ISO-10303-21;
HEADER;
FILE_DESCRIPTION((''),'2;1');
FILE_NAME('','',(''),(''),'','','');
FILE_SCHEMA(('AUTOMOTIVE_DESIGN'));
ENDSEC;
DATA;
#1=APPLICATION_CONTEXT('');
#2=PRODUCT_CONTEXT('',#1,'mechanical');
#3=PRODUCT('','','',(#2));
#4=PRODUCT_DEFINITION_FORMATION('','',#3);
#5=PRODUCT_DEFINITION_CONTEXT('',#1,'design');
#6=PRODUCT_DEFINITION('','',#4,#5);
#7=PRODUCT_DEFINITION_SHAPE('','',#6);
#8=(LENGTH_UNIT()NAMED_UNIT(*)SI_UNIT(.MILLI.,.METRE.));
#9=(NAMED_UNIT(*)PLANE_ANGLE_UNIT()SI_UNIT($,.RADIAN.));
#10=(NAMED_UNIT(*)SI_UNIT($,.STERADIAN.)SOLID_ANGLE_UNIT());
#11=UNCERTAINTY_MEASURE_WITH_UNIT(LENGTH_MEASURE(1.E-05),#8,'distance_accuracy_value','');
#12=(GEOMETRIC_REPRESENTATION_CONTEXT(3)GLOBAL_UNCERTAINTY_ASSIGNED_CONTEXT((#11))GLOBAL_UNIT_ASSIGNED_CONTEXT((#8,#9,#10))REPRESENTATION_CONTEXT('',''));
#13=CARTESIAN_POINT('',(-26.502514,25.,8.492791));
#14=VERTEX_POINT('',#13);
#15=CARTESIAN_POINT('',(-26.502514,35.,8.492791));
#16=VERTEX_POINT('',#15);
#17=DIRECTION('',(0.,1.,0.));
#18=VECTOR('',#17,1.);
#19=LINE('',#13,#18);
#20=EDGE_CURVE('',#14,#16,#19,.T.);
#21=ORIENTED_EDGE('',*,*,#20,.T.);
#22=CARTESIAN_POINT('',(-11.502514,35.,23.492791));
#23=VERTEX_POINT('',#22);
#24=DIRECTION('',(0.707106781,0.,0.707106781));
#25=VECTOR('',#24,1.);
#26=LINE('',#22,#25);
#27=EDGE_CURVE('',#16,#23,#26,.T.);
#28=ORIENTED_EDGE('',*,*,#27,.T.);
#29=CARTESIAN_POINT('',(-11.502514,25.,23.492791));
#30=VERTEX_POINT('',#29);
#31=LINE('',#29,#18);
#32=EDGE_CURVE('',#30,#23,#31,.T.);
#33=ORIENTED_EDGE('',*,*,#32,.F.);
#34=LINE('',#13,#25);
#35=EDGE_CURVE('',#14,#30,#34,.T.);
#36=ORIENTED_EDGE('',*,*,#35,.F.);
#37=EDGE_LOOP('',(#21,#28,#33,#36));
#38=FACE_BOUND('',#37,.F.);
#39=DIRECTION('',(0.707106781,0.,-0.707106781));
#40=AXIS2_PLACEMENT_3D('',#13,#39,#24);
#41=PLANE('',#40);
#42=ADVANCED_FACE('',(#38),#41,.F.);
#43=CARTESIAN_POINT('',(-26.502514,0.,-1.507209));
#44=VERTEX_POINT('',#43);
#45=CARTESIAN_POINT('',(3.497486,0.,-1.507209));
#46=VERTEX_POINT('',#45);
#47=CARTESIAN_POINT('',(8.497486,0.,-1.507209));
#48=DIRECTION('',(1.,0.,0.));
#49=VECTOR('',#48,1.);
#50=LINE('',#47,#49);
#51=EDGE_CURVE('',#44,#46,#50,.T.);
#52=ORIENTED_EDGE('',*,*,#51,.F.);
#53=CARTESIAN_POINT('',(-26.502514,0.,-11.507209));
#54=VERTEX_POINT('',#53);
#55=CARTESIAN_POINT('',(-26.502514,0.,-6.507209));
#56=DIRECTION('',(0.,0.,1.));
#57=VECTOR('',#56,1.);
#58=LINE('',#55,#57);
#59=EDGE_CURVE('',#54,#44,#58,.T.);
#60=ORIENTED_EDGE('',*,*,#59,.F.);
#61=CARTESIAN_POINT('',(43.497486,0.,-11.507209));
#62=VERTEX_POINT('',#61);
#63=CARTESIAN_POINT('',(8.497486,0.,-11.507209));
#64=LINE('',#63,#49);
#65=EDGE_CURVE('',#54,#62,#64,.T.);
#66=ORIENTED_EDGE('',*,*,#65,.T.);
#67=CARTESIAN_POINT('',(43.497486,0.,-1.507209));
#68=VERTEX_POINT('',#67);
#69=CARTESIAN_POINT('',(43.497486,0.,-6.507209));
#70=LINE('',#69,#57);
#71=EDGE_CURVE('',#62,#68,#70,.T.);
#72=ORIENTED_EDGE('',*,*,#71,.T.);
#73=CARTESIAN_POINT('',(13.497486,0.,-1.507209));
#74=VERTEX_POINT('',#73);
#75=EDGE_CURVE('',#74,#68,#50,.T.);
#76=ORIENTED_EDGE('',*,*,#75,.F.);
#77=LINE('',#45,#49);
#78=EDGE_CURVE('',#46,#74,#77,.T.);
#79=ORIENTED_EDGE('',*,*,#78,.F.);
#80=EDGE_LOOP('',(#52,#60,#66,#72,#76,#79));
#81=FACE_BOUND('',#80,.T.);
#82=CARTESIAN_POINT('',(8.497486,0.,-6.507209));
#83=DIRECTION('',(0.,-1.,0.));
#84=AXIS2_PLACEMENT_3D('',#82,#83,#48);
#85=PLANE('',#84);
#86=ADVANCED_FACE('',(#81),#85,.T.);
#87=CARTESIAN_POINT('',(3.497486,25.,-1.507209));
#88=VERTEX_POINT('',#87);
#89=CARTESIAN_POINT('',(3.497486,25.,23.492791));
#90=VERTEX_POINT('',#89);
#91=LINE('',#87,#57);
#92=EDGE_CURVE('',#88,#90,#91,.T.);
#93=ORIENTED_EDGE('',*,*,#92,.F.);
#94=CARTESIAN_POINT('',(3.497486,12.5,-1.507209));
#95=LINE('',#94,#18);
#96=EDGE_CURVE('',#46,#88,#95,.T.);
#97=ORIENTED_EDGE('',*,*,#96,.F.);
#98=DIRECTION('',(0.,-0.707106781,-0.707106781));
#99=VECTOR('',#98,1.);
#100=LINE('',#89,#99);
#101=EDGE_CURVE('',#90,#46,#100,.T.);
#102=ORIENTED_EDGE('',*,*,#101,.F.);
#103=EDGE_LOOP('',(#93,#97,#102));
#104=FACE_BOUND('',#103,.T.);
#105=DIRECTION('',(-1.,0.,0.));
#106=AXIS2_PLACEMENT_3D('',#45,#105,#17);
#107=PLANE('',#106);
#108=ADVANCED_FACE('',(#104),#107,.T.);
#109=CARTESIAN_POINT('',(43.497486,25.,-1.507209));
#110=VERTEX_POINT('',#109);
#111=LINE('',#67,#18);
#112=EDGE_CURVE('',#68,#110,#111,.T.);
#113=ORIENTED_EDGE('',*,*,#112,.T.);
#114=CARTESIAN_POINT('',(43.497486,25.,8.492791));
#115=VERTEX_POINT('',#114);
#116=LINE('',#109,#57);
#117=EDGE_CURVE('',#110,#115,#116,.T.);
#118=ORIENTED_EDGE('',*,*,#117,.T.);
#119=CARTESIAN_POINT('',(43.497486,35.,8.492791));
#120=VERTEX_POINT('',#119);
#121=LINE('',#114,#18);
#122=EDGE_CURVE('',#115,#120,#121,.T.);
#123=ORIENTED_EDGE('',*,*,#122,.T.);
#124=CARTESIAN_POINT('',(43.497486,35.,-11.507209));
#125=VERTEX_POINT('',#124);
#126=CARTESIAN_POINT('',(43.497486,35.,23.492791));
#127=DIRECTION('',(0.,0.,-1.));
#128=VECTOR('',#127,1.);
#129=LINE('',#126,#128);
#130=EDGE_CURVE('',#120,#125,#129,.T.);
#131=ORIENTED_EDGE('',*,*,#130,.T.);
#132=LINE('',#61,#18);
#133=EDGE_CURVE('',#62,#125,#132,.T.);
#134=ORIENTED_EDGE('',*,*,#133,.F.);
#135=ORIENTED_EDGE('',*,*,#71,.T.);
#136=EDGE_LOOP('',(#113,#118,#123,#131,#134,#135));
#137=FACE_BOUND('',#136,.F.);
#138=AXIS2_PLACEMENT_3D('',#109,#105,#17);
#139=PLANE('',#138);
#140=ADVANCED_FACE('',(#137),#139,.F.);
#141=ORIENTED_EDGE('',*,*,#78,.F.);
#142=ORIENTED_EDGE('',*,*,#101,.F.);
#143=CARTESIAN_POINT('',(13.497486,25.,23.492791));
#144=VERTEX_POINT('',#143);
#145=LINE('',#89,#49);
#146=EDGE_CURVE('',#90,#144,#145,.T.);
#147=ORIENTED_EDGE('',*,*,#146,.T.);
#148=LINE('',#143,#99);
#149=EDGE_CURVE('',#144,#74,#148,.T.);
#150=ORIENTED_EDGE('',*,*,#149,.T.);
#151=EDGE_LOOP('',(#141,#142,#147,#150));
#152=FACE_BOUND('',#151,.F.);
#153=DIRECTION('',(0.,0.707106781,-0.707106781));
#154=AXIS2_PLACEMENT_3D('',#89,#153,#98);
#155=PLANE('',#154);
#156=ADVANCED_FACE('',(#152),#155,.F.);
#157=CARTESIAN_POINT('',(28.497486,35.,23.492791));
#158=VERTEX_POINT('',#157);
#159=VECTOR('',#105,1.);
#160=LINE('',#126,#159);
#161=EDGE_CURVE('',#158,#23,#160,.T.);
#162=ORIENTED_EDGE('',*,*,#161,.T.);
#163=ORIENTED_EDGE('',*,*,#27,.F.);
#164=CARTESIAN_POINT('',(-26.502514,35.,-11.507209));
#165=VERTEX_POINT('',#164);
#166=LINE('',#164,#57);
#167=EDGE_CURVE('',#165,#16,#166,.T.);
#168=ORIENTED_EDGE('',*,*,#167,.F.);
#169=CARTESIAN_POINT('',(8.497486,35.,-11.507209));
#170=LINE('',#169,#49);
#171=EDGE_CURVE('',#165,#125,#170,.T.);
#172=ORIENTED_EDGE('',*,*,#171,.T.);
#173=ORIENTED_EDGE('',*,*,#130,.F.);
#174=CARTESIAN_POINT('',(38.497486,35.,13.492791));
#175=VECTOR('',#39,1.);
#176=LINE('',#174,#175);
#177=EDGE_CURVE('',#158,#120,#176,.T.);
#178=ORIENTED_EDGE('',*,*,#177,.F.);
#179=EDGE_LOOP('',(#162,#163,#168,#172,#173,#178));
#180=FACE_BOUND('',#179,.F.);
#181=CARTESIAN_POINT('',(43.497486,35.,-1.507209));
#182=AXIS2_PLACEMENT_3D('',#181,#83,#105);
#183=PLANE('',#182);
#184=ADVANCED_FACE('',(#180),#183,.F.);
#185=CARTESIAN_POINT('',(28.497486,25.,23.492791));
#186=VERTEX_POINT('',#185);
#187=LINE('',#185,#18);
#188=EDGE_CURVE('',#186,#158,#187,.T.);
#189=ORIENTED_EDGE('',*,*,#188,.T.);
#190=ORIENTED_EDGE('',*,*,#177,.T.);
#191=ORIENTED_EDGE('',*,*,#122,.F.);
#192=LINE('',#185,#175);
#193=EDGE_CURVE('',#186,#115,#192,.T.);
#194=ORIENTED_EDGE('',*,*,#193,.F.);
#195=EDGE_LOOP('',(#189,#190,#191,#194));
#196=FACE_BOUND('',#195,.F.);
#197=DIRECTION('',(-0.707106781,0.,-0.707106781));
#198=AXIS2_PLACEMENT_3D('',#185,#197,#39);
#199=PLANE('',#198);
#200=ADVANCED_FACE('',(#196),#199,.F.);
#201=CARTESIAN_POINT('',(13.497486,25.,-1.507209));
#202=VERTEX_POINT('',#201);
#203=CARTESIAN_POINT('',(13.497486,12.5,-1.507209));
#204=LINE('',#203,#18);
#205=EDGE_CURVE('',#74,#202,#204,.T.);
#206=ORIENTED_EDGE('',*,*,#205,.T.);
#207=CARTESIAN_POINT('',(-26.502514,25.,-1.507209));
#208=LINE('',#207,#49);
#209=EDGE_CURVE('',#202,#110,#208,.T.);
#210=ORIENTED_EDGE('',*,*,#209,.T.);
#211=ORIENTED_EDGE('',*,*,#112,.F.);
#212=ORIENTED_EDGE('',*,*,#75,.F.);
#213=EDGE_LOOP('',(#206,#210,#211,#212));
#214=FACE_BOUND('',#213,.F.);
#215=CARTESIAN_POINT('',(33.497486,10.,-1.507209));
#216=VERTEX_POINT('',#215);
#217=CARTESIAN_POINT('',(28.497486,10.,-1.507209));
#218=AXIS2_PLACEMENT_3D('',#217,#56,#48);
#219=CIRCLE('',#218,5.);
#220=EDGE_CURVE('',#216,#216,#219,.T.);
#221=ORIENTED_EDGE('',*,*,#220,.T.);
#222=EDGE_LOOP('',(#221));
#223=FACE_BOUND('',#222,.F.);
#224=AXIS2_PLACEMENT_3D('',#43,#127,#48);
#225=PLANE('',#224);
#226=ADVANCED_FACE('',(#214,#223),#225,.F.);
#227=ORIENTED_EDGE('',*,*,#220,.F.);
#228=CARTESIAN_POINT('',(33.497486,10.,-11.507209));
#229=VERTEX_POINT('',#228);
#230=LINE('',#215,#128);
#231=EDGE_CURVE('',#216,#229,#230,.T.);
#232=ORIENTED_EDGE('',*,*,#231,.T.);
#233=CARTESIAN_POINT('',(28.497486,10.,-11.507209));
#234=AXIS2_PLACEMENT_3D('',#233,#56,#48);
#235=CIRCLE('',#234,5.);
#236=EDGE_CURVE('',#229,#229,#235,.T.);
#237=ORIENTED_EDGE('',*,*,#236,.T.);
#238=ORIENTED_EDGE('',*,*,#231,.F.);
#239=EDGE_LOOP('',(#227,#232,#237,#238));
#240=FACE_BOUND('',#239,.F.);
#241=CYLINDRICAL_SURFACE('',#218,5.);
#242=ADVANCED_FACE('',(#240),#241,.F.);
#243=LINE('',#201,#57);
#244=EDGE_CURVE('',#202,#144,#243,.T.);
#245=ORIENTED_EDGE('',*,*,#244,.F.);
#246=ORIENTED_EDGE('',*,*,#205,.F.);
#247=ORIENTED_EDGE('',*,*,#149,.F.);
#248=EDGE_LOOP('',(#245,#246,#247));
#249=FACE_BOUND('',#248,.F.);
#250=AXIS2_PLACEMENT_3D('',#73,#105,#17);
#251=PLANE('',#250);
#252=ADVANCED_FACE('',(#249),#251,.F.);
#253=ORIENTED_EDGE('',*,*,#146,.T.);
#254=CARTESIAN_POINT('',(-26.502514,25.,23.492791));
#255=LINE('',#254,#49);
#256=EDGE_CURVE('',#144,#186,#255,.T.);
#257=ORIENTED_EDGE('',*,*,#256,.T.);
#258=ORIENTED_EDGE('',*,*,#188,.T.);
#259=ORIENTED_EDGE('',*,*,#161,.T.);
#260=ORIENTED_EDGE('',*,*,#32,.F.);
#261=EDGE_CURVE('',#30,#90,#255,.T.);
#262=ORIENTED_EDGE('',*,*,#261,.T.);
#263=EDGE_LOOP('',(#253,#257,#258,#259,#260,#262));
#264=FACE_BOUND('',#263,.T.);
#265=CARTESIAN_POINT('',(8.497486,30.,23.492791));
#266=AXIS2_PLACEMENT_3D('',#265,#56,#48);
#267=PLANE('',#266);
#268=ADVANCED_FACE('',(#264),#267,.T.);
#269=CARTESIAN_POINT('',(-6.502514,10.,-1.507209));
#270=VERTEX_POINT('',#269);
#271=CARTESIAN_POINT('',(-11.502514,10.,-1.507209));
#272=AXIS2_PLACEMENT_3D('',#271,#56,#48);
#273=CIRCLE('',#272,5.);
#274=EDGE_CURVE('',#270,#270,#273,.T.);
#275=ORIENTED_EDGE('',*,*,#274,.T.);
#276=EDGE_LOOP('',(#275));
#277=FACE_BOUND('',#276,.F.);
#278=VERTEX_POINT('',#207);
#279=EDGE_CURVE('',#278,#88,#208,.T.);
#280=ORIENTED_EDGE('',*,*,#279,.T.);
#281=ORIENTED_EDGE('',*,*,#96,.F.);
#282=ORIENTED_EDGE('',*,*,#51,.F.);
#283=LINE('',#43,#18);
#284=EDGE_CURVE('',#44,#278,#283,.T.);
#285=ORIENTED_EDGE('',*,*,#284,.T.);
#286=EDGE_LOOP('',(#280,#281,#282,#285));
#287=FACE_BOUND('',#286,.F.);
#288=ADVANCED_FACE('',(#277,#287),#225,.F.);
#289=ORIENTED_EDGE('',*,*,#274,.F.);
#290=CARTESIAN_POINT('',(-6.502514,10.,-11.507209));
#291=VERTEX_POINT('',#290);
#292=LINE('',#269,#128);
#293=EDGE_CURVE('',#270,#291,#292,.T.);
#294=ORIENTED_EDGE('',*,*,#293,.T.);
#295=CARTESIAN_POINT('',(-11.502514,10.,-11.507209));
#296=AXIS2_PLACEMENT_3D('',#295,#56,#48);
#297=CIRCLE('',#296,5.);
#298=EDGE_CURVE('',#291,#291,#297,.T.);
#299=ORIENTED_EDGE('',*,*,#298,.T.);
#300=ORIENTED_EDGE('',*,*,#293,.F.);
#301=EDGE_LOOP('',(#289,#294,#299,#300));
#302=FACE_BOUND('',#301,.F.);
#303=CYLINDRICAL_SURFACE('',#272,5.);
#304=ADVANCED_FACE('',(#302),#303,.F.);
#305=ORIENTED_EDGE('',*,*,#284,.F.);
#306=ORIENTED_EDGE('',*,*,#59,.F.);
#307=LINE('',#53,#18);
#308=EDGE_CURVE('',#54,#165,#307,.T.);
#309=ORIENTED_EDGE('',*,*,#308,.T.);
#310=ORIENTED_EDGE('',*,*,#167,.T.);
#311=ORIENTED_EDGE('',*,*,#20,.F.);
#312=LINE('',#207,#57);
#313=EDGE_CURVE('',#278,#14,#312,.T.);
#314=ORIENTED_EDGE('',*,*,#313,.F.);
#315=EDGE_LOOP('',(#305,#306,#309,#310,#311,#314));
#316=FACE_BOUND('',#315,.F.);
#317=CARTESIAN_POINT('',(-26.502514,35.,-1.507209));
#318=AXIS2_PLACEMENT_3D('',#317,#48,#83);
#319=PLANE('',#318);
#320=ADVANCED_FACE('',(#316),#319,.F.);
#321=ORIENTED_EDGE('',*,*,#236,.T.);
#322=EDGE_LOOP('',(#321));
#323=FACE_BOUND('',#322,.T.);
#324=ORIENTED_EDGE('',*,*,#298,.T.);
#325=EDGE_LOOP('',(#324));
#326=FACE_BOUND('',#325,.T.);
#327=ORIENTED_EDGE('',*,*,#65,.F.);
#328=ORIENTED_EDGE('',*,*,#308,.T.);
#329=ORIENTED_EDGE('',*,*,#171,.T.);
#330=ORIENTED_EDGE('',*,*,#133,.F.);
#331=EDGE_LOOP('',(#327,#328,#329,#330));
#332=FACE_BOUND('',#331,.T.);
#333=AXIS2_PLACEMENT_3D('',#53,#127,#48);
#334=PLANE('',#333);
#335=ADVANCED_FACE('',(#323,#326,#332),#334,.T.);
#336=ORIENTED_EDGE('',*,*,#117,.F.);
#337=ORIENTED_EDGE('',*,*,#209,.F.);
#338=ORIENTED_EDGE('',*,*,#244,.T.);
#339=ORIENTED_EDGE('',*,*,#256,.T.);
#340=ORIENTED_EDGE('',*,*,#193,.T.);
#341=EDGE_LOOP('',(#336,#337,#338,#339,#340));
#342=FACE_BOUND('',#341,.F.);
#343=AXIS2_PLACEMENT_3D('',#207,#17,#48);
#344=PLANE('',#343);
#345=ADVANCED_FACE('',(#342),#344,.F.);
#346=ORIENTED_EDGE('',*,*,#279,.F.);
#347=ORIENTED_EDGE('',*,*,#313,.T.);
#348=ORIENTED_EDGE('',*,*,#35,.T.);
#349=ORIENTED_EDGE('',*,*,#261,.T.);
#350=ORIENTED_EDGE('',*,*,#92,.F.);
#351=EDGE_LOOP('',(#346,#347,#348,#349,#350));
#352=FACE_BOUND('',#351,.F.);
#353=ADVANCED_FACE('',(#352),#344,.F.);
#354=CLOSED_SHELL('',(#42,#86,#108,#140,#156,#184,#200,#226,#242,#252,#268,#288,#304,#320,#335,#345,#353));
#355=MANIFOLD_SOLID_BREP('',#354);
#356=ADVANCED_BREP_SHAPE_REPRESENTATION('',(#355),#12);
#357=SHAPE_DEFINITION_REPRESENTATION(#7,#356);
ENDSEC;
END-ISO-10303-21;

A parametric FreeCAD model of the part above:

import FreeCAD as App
import Part
import Sketcher
from FreeCAD import Vector


def add_polygon(sketch, points):
    """Adds a closed chain of lines whose ends are joined by coincident constraints."""
    first, n = sketch.GeometryCount, len(points)
    for a, b in zip(points, points[1:] + points[:1]):
        sketch.addGeometry(Part.LineSegment(App.Vector(*a, 0), App.Vector(*b, 0)), False)
    for i in range(n):
        sketch.addConstraint(Sketcher.Constraint("Coincident", first + i, 2, first + (i + 1) % n, 1))

doc = App.newDocument("Part")
body = doc.addObject("PartDesign::Body", "Body")

# Sketch on XZ plane
sketch1 = body.newObject("Sketcher::SketchObject", "Sketch")
sketch1.AttachmentSupport = (doc.getObject("XZ_Plane"), [""])
sketch1.MapMode = "FlatFace"
add_polygon(sketch1, [(-27, -2), (-27, -12), (43, -12), (43, -2)])  # lines 0-3
sketch1.addConstraint([
    Sketcher.Constraint("Vertical", 0),
    Sketcher.Constraint("Horizontal", 1),
    Sketcher.Constraint("Vertical", 2),
    Sketcher.Constraint("Horizontal", 3),
    Sketcher.Constraint("DistanceX", 1, 1, 1, 2, 70.0),
    Sketcher.Constraint("DistanceY", 0, 2, 0, 1, 10.0),
    Sketcher.Constraint("DistanceY", 0, 2, -1, 1, 11.507209),
    Sketcher.Constraint("DistanceX", 0, 2, -1, 1, 26.502514),
])
pad1 = body.newObject("PartDesign::Pad", "Pad")
pad1.Profile = sketch1
pad1.Length = 35
pad1.Reversed = True

# Sketch on XY plane
sketch2 = body.newObject("Sketcher::SketchObject", "Sketch001")
sketch2.AttachmentSupport = (doc.getObject("XY_Plane"), [""])
sketch2.MapMode = "FlatFace"
sketch2.AttachmentOffset = App.Placement(Vector(0, 0, -1.507209), App.Rotation())
add_polygon(sketch2, [(43, 35), (-27, 35), (-27, 25), (43, 25)])  # lines 0-3
sketch2.addConstraint([
    Sketcher.Constraint("Horizontal", 0),
    Sketcher.Constraint("Vertical", 1),
    Sketcher.Constraint("Horizontal", 2),
    Sketcher.Constraint("Vertical", 3),
    Sketcher.Constraint("DistanceX", 0, 2, 0, 1, 70.0),
    Sketcher.Constraint("DistanceY", 1, 2, 1, 1, 10.0),
    Sketcher.Constraint("DistanceY", -1, 1, 0, 2, 35.0),
    Sketcher.Constraint("DistanceX", 0, 2, -1, 1, 26.502514),
])
pad2 = body.newObject("PartDesign::Pad", "Pad001")
pad2.Profile = sketch2
pad2.Length = 25

# Sketch on XY plane
sketch3 = body.newObject("Sketcher::SketchObject", "Sketch002")
sketch3.AttachmentSupport = (doc.getObject("XY_Plane"), [""])
sketch3.MapMode = "FlatFace"
sketch3.AttachmentOffset = App.Placement(Vector(0, 0, -1.507209), App.Rotation())
add_polygon(sketch3, [(3, 25), (3, 0), (13, 0), (13, 25)])  # lines 0-3
sketch3.addConstraint([
    Sketcher.Constraint("Vertical", 0),
    Sketcher.Constraint("Horizontal", 1),
    Sketcher.Constraint("Vertical", 2),
    Sketcher.Constraint("Horizontal", 3),
    Sketcher.Constraint("PointOnObject", 0, 2, -1),
    Sketcher.Constraint("DistanceX", 1, 1, 1, 2, 10.0),
    Sketcher.Constraint("DistanceY", 0, 2, 0, 1, 25.0),
    Sketcher.Constraint("DistanceX", -1, 1, 0, 2, 3.497486),
])
pad3 = body.newObject("PartDesign::Pad", "Pad002")
pad3.Profile = sketch3
pad3.Length = 25

# Sketch on YZ plane
sketch4 = body.newObject("Sketcher::SketchObject", "Sketch003")
sketch4.AttachmentSupport = (doc.getObject("YZ_Plane"), [""])
sketch4.MapMode = "FlatFace"
sketch4.AttachmentOffset = App.Placement(Vector(0, 0, 3.497486), App.Rotation())
add_polygon(sketch4, [(0, 23), (25, 23), (0, -2)])  # lines 0-2
sketch4.addConstraint([
    Sketcher.Constraint("Horizontal", 0),
    Sketcher.Constraint("Vertical", 2),
    Sketcher.Constraint("PointOnObject", 1, 2, -2),
    Sketcher.Constraint("Equal", 0, 2),
    Sketcher.Constraint("DistanceX", 0, 1, 0, 2, 25.0),
    Sketcher.Constraint("DistanceY", -1, 1, 0, 2, 23.492791),
])
pocket1 = body.newObject("PartDesign::Pocket", "Pocket")
pocket1.Profile = sketch4
pocket1.Type = "ThroughAll"
pocket1.Reversed = True

# Sketch on XY plane
sketch5 = body.newObject("Sketcher::SketchObject", "Sketch004")
sketch5.AttachmentSupport = (doc.getObject("XY_Plane"), [""])
sketch5.MapMode = "FlatFace"
sketch5.AttachmentOffset = App.Placement(Vector(0, 0, -1.507209), App.Rotation())
sketch5.addGeometry([
    Part.Circle(Vector(28, 10, 0), Vector(0, 0, 1), 5),
    Part.Circle(Vector(-12, 10, 0), Vector(0, 0, 1), 5),
], False)
sketch5.addConstraint([
    Sketcher.Constraint("Equal", 0, 1),
    Sketcher.Constraint("Horizontal", 0, 3, 1, 3),
    Sketcher.Constraint("Diameter", 0, 10.0),
    Sketcher.Constraint("DistanceY", -1, 1, 0, 3, 10.0),
    Sketcher.Constraint("DistanceX", 1, 3, 0, 3, 40.0),
    Sketcher.Constraint("DistanceX", -1, 1, 0, 3, 28.497486),
])
pocket2 = body.newObject("PartDesign::Pocket", "Pocket001")
pocket2.Profile = sketch5
pocket2.Length = 25

# Sketch on XZ plane
sketch6 = body.newObject("Sketcher::SketchObject", "Sketch005")
sketch6.AttachmentSupport = (doc.getObject("XZ_Plane"), [""])
sketch6.MapMode = "FlatFace"
sketch6.AttachmentOffset = App.Placement(Vector(0, 0, -25), App.Rotation())
add_polygon(sketch6, [(43, 8), (43, 23), (28, 23)])  # lines 0-2
add_polygon(sketch6, [(-12, 23), (-27, 23), (-27, 8)])  # lines 3-5
sketch6.addConstraint([
    Sketcher.Constraint("Vertical", 0),
    Sketcher.Constraint("Horizontal", 1),
    Sketcher.Constraint("Horizontal", 3),
    Sketcher.Constraint("Vertical", 4),
    Sketcher.Constraint("Perpendicular", 2, 5),
    Sketcher.Constraint("Horizontal", 1, 2, 3, 2),
    Sketcher.Constraint("Horizontal", 2, 2, 4, 2),
    Sketcher.Constraint("Equal", 1, 3),
    Sketcher.Constraint("DistanceX", 1, 2, 1, 1, 15.0),
    Sketcher.Constraint("DistanceX", 3, 2, 1, 2, 55.0),
    Sketcher.Constraint("DistanceY", -1, 1, 0, 2, 23.492791),
    Sketcher.Constraint("DistanceX", -1, 1, 0, 2, 43.497486),
])
pocket3 = body.newObject("PartDesign::Pocket", "Pocket002")
pocket3.Profile = sketch6
pocket3.Length = 25

doc.recompute()
